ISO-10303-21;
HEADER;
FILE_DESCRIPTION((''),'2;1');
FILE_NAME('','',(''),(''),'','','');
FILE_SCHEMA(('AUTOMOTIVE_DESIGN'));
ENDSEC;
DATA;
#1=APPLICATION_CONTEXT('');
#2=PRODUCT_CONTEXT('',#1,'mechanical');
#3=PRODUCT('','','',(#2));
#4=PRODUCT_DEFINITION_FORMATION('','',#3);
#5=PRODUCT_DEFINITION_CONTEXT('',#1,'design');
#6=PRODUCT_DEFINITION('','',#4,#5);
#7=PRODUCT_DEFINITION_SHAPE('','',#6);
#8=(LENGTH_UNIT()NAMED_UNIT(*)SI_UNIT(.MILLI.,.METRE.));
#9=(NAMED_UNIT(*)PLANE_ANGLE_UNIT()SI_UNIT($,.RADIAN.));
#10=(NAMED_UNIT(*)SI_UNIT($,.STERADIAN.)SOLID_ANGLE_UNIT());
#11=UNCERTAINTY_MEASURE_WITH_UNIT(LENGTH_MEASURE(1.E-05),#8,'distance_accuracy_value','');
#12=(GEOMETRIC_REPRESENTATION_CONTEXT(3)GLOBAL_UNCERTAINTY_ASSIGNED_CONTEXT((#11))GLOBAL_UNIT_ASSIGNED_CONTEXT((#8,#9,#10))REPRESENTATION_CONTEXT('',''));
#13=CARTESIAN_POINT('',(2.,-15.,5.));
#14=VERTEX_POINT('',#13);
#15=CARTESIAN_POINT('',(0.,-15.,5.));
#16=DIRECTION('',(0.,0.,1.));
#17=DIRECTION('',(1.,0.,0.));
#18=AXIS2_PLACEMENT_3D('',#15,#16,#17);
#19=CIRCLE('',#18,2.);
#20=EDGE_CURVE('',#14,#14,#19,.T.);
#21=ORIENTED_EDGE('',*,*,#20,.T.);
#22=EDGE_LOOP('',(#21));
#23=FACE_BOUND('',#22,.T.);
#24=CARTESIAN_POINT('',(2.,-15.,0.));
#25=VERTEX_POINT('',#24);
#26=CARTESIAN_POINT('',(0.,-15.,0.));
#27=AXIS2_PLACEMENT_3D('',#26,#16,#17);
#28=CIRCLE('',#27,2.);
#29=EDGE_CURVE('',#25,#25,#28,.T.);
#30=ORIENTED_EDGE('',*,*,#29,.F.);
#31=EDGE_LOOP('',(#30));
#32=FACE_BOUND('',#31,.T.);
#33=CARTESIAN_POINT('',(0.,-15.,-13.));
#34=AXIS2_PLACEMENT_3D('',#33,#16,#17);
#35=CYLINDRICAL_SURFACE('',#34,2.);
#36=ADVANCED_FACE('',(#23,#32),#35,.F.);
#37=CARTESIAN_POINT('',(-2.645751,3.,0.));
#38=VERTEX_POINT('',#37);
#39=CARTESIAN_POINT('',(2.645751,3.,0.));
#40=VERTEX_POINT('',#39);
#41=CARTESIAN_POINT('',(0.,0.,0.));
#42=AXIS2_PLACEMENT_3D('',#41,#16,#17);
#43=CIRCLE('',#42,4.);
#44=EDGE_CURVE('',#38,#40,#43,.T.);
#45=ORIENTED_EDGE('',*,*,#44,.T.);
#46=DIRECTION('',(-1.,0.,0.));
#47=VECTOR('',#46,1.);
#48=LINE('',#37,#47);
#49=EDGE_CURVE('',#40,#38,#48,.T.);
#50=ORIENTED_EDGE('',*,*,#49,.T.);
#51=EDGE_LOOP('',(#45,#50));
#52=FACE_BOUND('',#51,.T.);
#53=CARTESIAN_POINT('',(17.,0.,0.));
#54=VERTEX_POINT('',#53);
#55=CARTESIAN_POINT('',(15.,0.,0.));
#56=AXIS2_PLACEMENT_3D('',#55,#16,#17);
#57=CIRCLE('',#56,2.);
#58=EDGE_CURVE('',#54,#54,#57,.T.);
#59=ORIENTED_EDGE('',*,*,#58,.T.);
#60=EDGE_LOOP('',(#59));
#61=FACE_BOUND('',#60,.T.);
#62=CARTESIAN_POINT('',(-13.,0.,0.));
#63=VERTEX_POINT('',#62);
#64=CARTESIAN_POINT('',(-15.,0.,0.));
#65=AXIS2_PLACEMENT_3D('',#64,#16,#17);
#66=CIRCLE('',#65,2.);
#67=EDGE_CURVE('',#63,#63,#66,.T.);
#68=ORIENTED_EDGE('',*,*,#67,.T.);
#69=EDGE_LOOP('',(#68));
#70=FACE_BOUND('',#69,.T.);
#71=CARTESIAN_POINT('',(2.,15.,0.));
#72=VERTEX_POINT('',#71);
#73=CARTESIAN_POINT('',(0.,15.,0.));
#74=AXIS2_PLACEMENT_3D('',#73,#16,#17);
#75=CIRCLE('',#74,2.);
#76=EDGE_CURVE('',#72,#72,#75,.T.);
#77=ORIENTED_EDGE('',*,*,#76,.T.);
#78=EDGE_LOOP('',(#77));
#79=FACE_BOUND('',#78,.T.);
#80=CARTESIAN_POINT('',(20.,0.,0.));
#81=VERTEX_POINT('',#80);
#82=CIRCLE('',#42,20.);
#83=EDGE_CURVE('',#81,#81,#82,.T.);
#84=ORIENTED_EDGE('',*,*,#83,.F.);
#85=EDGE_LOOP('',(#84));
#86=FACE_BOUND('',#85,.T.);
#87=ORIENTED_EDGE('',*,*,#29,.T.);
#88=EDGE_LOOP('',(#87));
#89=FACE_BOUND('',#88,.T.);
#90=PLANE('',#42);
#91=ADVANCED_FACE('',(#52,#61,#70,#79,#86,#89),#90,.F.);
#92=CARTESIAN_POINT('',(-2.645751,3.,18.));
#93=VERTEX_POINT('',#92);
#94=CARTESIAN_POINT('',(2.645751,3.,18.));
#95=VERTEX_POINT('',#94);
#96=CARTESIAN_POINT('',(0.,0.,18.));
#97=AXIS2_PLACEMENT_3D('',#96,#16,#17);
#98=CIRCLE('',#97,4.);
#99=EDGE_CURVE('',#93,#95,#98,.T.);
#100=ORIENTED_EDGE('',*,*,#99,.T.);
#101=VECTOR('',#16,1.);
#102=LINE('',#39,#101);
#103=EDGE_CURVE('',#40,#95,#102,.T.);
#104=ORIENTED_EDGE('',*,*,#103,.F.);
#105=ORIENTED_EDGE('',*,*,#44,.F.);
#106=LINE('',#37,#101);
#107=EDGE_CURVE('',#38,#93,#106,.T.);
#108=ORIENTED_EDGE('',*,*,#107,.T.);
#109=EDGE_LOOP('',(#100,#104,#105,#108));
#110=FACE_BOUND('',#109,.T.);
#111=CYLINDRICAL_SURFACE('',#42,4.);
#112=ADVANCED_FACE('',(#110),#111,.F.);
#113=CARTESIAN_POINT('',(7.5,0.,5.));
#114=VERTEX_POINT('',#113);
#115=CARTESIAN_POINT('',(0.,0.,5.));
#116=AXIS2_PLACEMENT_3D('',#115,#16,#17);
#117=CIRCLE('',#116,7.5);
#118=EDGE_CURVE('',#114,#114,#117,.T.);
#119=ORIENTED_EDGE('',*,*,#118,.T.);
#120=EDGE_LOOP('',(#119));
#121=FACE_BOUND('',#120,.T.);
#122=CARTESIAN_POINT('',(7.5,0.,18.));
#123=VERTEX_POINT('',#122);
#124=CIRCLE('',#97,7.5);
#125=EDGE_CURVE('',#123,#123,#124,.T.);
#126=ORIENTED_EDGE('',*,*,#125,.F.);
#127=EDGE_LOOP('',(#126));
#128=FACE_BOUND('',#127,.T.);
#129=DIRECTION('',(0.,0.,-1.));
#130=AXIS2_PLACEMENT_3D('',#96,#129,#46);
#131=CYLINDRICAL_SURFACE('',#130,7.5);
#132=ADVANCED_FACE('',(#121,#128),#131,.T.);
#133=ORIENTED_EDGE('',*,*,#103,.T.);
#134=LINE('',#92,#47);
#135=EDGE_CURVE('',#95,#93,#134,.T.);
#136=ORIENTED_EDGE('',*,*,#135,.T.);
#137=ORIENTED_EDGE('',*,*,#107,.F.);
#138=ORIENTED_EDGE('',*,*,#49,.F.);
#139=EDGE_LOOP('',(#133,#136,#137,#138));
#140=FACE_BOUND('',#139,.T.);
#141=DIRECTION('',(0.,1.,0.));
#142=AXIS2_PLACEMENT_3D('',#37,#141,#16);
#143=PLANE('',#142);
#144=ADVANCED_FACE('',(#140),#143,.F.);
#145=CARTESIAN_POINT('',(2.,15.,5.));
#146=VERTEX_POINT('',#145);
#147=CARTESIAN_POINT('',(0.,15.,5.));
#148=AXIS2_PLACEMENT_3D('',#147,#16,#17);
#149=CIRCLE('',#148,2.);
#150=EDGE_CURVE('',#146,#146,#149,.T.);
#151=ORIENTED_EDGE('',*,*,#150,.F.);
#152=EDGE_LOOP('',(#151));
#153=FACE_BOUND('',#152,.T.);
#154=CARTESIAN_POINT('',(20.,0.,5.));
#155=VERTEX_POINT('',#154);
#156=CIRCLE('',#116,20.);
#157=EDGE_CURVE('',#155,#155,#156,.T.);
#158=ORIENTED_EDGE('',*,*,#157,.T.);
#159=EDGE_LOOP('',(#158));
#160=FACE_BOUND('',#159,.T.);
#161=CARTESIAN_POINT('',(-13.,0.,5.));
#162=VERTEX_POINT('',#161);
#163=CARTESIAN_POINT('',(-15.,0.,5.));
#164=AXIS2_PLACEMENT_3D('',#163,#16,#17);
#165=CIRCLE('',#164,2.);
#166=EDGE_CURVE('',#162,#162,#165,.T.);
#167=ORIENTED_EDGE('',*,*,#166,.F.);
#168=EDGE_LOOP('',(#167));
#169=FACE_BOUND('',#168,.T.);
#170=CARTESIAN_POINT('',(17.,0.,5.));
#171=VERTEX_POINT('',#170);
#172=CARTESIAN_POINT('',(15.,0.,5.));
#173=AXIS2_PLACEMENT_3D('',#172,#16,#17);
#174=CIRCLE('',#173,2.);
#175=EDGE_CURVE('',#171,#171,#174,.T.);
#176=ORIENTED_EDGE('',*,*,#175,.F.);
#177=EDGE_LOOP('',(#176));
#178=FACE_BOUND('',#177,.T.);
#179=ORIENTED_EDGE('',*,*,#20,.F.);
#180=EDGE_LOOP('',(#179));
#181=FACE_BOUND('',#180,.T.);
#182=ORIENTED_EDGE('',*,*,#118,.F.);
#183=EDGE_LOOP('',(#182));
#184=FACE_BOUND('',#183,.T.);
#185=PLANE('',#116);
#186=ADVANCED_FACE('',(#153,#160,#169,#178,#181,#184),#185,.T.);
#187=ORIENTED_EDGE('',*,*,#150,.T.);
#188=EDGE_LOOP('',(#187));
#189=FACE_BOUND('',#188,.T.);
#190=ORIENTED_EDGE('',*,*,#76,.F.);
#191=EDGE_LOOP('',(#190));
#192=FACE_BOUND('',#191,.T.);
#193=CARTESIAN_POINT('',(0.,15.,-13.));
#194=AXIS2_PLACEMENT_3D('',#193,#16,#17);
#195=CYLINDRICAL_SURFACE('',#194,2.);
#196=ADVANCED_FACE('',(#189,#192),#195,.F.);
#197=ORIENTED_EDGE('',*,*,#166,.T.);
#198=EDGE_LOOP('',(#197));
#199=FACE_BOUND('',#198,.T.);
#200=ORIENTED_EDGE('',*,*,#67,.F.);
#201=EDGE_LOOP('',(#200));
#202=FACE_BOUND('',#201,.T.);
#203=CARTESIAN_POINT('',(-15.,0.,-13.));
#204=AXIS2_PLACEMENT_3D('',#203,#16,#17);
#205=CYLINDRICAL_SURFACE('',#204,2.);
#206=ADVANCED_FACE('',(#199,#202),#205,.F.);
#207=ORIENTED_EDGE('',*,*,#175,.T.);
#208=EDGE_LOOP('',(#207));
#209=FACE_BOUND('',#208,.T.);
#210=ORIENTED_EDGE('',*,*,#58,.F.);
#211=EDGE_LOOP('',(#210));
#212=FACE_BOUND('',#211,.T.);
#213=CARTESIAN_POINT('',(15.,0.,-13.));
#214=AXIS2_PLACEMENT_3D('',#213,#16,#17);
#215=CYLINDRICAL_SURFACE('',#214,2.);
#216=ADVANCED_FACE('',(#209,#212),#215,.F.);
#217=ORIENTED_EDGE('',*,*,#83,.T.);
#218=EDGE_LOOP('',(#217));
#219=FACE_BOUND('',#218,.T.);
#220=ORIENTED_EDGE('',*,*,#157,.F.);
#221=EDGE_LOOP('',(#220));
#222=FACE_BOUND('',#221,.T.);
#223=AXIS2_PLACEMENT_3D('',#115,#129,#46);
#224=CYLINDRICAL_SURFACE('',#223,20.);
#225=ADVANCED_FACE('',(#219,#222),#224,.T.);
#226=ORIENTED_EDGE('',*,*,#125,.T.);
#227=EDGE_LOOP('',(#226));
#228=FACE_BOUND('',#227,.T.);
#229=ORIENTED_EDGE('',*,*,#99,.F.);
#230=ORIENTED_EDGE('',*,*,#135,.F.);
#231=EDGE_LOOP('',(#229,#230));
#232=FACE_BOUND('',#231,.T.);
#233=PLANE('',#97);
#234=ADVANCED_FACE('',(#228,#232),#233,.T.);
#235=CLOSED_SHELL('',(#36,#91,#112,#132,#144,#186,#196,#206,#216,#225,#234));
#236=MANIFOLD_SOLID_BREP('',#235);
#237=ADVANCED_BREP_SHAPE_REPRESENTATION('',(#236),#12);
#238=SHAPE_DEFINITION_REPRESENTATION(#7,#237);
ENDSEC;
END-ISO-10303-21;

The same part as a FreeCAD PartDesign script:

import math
import FreeCAD as App
import Part
import Sketcher

doc = App.newDocument("Part")
params = doc.addObject("Spreadsheet::Sheet", "Params")
for row, (alias, value) in enumerate([
    ("sketch1_diameter", "40 mm"),
    ("pad1_length", "5 mm"),
    ("sketch2_diameter", "15 mm"),
    ("pad2_length", "13 mm"),
    ("sketch3_radius", "4 mm"),
    ("pocket1_length", "18 mm"),
    ("sketch4_diameter", "4 mm"),
    ("pocket2_length", "18 mm"),
], start=1):
    params.set(f"A{row}", alias)
    params.set(f"B{row}", "=" + value)
    params.setAlias(f"B{row}", alias)

body = doc.addObject("PartDesign::Body", "Body")

# Sketch on XY plane
sketch1 = body.newObject("Sketcher::SketchObject", "Sketch")
sketch1.AttachmentSupport = (doc.getObject("XY_Plane"), [""])
sketch1.MapMode = "FlatFace"
sketch1.addGeometry(Part.Circle(App.Vector(0, 0, 0), App.Vector(0, 0, 1), 20), False)
sketch1.addConstraint([
    Sketcher.Constraint("Coincident", 0, 3, -1, 1),
    Sketcher.Constraint("Diameter", 0, 40.0),
])
sketch1.setExpression("Constraints[1]", "Params.sketch1_diameter")
pad1 = body.newObject("PartDesign::Pad", "Pad")
pad1.Profile = sketch1
pad1.setExpression("Length", "Params.pad1_length")

# Sketch on XY plane
sketch2 = body.newObject("Sketcher::SketchObject", "Sketch001")
sketch2.AttachmentSupport = (doc.getObject("XY_Plane"), [""])
sketch2.MapMode = "FlatFace"
sketch2.AttachmentOffset = App.Placement(App.Vector(0, 0, 5), App.Rotation())
sketch2.addGeometry(Part.Circle(App.Vector(0, 0, 0), App.Vector(0, 0, 1), 8), False)
sketch2.addConstraint([
    Sketcher.Constraint("Coincident", 0, 3, -1, 1),
    Sketcher.Constraint("Diameter", 0, 15.0),
])
sketch2.setExpression("Constraints[1]", "Params.sketch2_diameter")
pad2 = body.newObject("PartDesign::Pad", "Pad001")
pad2.Profile = sketch2
pad2.setExpression("Length", "Params.pad2_length")

# Sketch on XY plane
sketch3 = body.newObject("Sketcher::SketchObject", "Sketch002")
sketch3.AttachmentSupport = (doc.getObject("XY_Plane"), [""])
sketch3.MapMode = "FlatFace"
sketch3.AttachmentOffset = App.Placement(App.Vector(0, 0, 18), App.Rotation())
sketch3.addGeometry([
    Part.LineSegment(App.Vector(2.6, 3, 0), App.Vector(-2.6, 3, 0)),
    Part.ArcOfCircle(Part.Circle(App.Vector(0, 0, 0), App.Vector(0, 0, 1), 4), math.radians(131), math.radians(409)),
], False)
sketch3.addConstraint([
    Sketcher.Constraint("Coincident", 0, 1, 1, 2),
    Sketcher.Constraint("Coincident", 1, 1, 0, 2),
    Sketcher.Constraint("Horizontal", 0),
    Sketcher.Constraint("Coincident", 1, 3, -1, 1),
    Sketcher.Constraint("Radius", 1, 4.0),
    Sketcher.Constraint("DistanceY", -1, 1, 0, 1, 3.0),
])
sketch3.setExpression("Constraints[4]", "Params.sketch3_radius")
pocket1 = body.newObject("PartDesign::Pocket", "Pocket")
pocket1.Profile = sketch3
pocket1.setExpression("Length", "Params.pocket1_length")

# Sketch on XY plane
sketch4 = body.newObject("Sketcher::SketchObject", "Sketch003")
sketch4.AttachmentSupport = (doc.getObject("XY_Plane"), [""])
sketch4.MapMode = "FlatFace"
sketch4.AttachmentOffset = App.Placement(App.Vector(0, 0, 5), App.Rotation())
sketch4.addGeometry([
    Part.Circle(App.Vector(0, 15, 0), App.Vector(0, 0, 1), 2),
    Part.Circle(App.Vector(15, 0, 0), App.Vector(0, 0, 1), 2),
    Part.Circle(App.Vector(0, -15, 0), App.Vector(0, 0, 1), 2),
    Part.Circle(App.Vector(-15, 0, 0), App.Vector(0, 0, 1), 2),
], False)
sketch4.addConstraint([
    Sketcher.Constraint("Equal", 0, 1),
    Sketcher.Constraint("Equal", 1, 2),
    Sketcher.Constraint("Equal", 2, 3),
    Sketcher.Constraint("Symmetric", 0, 3, 2, 3, -1, 1),
    Sketcher.Constraint("Symmetric", 1, 3, 3, 3, -1, 1),
    Sketcher.Constraint("PointOnObject", 0, 3, -2),
    Sketcher.Constraint("PointOnObject", 1, 3, -1),
    Sketcher.Constraint("Diameter", 0, 4.0),
    Sketcher.Constraint("DistanceY", -1, 1, 0, 3, 15.0),
    Sketcher.Constraint("DistanceX", -1, 1, 1, 3, 15.0),
])
sketch4.setExpression("Constraints[7]", "Params.sketch4_diameter")
pocket2 = body.newObject("PartDesign::Pocket", "Pocket001")
pocket2.Profile = sketch4
pocket2.setExpression("Length", "Params.pocket2_length")

doc.recompute()
